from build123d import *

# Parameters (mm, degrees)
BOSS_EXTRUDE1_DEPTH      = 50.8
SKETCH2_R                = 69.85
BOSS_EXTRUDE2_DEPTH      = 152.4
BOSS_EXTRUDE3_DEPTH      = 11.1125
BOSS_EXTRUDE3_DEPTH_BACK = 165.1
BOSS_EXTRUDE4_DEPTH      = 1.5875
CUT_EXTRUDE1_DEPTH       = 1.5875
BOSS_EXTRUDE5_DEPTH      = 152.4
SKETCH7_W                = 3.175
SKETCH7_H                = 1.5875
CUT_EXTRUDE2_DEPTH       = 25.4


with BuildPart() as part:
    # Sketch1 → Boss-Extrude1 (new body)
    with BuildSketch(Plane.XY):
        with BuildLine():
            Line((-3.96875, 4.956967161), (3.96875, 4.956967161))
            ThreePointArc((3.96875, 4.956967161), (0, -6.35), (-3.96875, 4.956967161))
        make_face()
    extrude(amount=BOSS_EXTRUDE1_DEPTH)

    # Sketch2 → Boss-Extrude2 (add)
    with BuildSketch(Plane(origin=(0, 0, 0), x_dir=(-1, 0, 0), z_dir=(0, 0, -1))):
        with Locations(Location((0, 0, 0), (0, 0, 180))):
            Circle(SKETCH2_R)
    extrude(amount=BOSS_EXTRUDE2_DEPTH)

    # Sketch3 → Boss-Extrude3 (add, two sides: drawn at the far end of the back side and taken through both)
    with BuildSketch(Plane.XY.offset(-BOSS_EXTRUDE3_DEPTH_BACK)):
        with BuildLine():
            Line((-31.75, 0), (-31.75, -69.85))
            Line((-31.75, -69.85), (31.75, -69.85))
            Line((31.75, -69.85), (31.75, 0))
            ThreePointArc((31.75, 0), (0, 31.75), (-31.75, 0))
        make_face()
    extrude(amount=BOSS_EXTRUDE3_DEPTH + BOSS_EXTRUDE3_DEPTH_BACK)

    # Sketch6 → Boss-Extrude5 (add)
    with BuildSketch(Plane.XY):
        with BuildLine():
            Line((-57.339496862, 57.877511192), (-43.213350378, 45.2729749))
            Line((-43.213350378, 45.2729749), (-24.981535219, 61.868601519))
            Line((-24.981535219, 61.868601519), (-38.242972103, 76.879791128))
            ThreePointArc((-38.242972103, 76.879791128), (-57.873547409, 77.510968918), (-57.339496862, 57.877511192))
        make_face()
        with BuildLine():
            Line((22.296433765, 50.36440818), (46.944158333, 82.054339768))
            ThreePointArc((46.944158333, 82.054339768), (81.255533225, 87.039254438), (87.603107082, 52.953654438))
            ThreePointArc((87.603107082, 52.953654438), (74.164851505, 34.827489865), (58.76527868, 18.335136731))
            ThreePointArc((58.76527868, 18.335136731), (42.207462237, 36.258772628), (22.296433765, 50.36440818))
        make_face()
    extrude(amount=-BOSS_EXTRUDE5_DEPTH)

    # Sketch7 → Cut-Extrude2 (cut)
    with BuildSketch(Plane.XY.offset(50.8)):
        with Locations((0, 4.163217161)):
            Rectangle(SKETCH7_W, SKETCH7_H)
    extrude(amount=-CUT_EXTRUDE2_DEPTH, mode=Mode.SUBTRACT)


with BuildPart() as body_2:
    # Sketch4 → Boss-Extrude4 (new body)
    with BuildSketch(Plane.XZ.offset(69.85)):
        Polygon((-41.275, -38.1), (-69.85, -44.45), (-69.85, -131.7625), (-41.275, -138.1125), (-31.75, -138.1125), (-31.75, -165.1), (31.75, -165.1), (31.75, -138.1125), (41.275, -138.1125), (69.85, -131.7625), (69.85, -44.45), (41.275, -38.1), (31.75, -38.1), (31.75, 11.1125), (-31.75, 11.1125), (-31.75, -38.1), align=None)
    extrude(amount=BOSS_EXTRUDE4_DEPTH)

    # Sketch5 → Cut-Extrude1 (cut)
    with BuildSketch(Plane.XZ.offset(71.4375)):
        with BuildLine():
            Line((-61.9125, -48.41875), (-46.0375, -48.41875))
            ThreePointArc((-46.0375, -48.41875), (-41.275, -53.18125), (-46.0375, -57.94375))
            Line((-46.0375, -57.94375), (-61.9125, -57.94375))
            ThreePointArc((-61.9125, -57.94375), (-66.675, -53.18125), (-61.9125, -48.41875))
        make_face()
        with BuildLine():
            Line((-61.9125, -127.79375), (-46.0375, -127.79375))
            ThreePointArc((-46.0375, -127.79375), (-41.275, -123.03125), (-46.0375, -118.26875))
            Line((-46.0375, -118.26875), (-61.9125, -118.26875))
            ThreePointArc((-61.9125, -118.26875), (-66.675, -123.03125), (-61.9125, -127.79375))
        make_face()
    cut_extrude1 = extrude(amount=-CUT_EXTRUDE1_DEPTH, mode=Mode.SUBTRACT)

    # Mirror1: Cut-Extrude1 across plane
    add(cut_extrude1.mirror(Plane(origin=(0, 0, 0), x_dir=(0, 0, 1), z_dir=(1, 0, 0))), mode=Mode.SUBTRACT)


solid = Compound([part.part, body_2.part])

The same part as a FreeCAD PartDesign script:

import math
import FreeCAD as App
import Part
import Sketcher
from FreeCAD import Vector
Q = App.Units.Quantity


def add_polygon(sketch, points):
    """Adds a closed chain of lines whose ends are joined by coincident constraints."""
    first, n = sketch.GeometryCount, len(points)
    for a, b in zip(points, points[1:] + points[:1]):
        sketch.addGeometry(Part.LineSegment(App.Vector(*a, 0), App.Vector(*b, 0)), False)
    for i in range(n):
        sketch.addConstraint(Sketcher.Constraint("Coincident", first + i, 2, first + (i + 1) % n, 1))

doc = App.newDocument("Part")
body = doc.addObject("PartDesign::Body", "Body")

# Sketch on XY plane
sketch1 = doc.addObject("Sketcher::SketchObject", "Sketch")
body.addObject(sketch1)
sketch1.AttachmentSupport = (doc.XY_Plane, [""])
sketch1.MapMode = "FlatFace"
sketch1.addGeometry([
    Part.LineSegment(Vector(3.96875, 4.956967, 0), Vector(-3.96875, 4.956967, 0)),
    Part.ArcOfCircle(Part.Circle(Vector(0, 0, 0), Vector(0, 0, 1), 6.35), math.radians(128.682187), math.radians(411.317813)),
], False)
sketch1.addConstraint([
    Sketcher.Constraint("Coincident", 0, 1, 1, 2),
    Sketcher.Constraint("Coincident", 1, 1, 0, 2),
    Sketcher.Constraint("Horizontal", 0),
    Sketcher.Constraint("Coincident", 1, 3, -1, 1),
    Sketcher.Constraint("Radius", 1, Q("0.25 in")),
    Sketcher.Constraint("DistanceX", 0, 2, 0, 1, Q("0.3125 in")),
])
pad1 = doc.addObject("PartDesign::Pad", "Pad")
body.addObject(pad1)
pad1.Profile = sketch1
pad1.Length = Q("2 in")

# Sketch on XY plane
sketch2 = doc.addObject("Sketcher::SketchObject", "Sketch001")
body.addObject(sketch2)
sketch2.AttachmentSupport = (doc.XY_Plane, [""])
sketch2.MapMode = "FlatFace"
sketch2.addGeometry(Part.Circle(Vector(0, 0, 0), Vector(0, 0, 1), 69.85), False)
sketch2.addConstraint([
    Sketcher.Constraint("Coincident", 0, 3, -1, 1),
    Sketcher.Constraint("Diameter", 0, Q("5.5 in")),
])
pad2 = doc.addObject("PartDesign::Pad", "Pad001")
body.addObject(pad2)
pad2.Profile = sketch2
pad2.Length = Q("6 in")
pad2.Reversed = True

# Sketch on XY plane
sketch3 = doc.addObject("Sketcher::SketchObject", "Sketch002")
body.addObject(sketch3)
sketch3.AttachmentSupport = (doc.XY_Plane, [""])
sketch3.MapMode = "FlatFace"
sketch3.addGeometry([
    Part.LineSegment(Vector(-31.75, 0, 0), Vector(-31.75, -69.85, 0)),
    Part.LineSegment(Vector(-31.75, -69.85, 0), Vector(31.75, -69.85, 0)),
    Part.LineSegment(Vector(31.75, -69.85, 0), Vector(31.75, 0, 0)),
    Part.ArcOfCircle(Part.Circle(Vector(0, 0, 0), Vector(0, 0, 1), 31.75), math.radians(0), math.radians(180)),
], False)
sketch3.addConstraint([
    Sketcher.Constraint("Coincident", 0, 2, 1, 1),
    Sketcher.Constraint("Coincident", 1, 2, 2, 1),
    Sketcher.Constraint("Tangent", 2, 2, 3, 1),
    Sketcher.Constraint("Tangent", 3, 2, 0, 1),
    Sketcher.Constraint("Vertical", 0),
    Sketcher.Constraint("Horizontal", 1),
    Sketcher.Constraint("Vertical", 2),
    Sketcher.Constraint("Coincident", 3, 3, -1, 1),
    Sketcher.Constraint("Radius", 3, Q("1.25 in")),
    Sketcher.Constraint("DistanceY", 0, 2, 0, 1, Q("2.75 in")),
])
pad3 = doc.addObject("PartDesign::Pad", "Pad002")
body.addObject(pad3)
pad3.Profile = sketch3
pad3.Type = "TwoLengths"
pad3.Length = Q("0.4375 in")
pad3.Length2 = Q("6.5 in")

# Sketch on XY plane
sketch4 = doc.addObject("Sketcher::SketchObject", "Sketch003")
body.addObject(sketch4)
sketch4.AttachmentSupport = (doc.XY_Plane, [""])
sketch4.MapMode = "FlatFace"
sketch4.addGeometry([
    Part.LineSegment(Vector(-57.339497, 57.877511, 0), Vector(-43.21335, 45.272975, 0)),  # 0
    Part.LineSegment(Vector(-43.21335, 45.272975, 0), Vector(-24.981535, 61.868602, 0)),  # 1
    Part.LineSegment(Vector(-24.981535, 61.868602, 0), Vector(-38.242972, 76.879791, 0)),  # 2
    Part.ArcOfCircle(Part.Circle(Vector(-48.355657, 67.945873, 0), Vector(0, 0, 1), 13.49375), math.radians(41.458562), math.radians(228.257974)),  # 3
    Part.LineSegment(Vector(46.944158, 82.05434, 0), Vector(22.296434, 50.364408, 0)),  # 4
    Part.ArcOfCircle(Part.Circle(Vector(-35.115285, -51.781671, 0), Vector(0, 0, 1), 117.174771), math.radians(36.755041), math.radians(60.661617)),  # 5
    Part.ArcOfCircle(Part.Circle(Vector(-79.085284, 162.487523, 0), Vector(0, 0, 1), 199.45598), math.radians(-46.280156), math.radians(-33.309618)),  # 6
    Part.ArcOfCircle(Part.Circle(Vector(66.693635, 66.693635, 0), Vector(0, 0, 1), 25.019854), math.radians(-33.309618), math.radians(142.125016)),  # 7
], False)
sketch4.addConstraint([
    Sketcher.Constraint("Coincident", 0, 2, 1, 1),
    Sketcher.Constraint("Coincident", 1, 2, 2, 1),
    Sketcher.Constraint("Tangent", 2, 2, 3, 1),
    Sketcher.Constraint("Tangent", 3, 2, 0, 1),
    Sketcher.Constraint("Coincident", 4, 2, 5, 2),
    Sketcher.Constraint("Coincident", 5, 1, 6, 1),
    Sketcher.Constraint("Tangent", 6, 2, 7, 1),
    Sketcher.Constraint("Tangent", 7, 2, 4, 1),
    Sketcher.Constraint("Radius", 3, Q("0.53125 in")),
    Sketcher.Constraint("Radius", 5, 117.174771),
    Sketcher.Constraint("Radius", 6, 199.45598),
    Sketcher.Constraint("Radius", 7, 25.019854),
    Sketcher.Constraint("DistanceY", -1, 1, 1, 2, 61.868602),
    Sketcher.Constraint("DistanceX", 6, 3, 5, 3, 43.969999),
    Sketcher.Constraint("DistanceY", 0, 2, 3, 3, 22.672898),
    Sketcher.Constraint("DistanceX", 4, 2, 7, 3, 44.397202),
    Sketcher.Constraint("DistanceY", 5, 1, 7, 3, 48.358499),
    Sketcher.Constraint("DistanceY", 5, 3, -1, 1, 51.781671),
    Sketcher.Constraint("DistanceX", 0, 2, -1, 1, 43.21335),
    Sketcher.Constraint("DistanceY", -1, 1, 2, 2, 76.879791),
    Sketcher.Constraint("DistanceY", -1, 1, 3, 2, 57.877511),
    Sketcher.Constraint("DistanceY", -1, 1, 4, 2, 50.364408),
    Sketcher.Constraint("DistanceX", -1, 1, 5, 1, 58.765279),
    Sketcher.Constraint("DistanceY", 3, 3, 6, 3, 94.541649),
])
pad4 = doc.addObject("PartDesign::Pad", "Pad003")
body.addObject(pad4)
pad4.Profile = sketch4
pad4.Length = Q("6 in")
pad4.Reversed = True

# Sketch on XY plane
sketch5 = doc.addObject("Sketcher::SketchObject", "Sketch004")
body.addObject(sketch5)
sketch5.AttachmentSupport = (doc.XY_Plane, [""])
sketch5.MapMode = "FlatFace"
sketch5.AttachmentOffset = App.Placement(Vector(0, 0, 2 * 25.4), App.Rotation())
add_polygon(sketch5, [(-1.5875, 4.956967), (-1.5875, 3.369467), (1.5875, 3.369467), (1.5875, 4.956967)])  # lines 0-3
sketch5.addConstraint([
    Sketcher.Constraint("Vertical", 0),
    Sketcher.Constraint("Horizontal", 1),
    Sketcher.Constraint("Vertical", 2),
    Sketcher.Constraint("Horizontal", 3),
    Sketcher.Constraint("DistanceX", 1, 1, 1, 2, Q("0.125 in")),
    Sketcher.Constraint("DistanceY", 0, 2, 0, 1, Q("0.0625 in")),
    Sketcher.Constraint("DistanceX", 0, 2, -1, 1, Q("0.0625 in")),
    Sketcher.Constraint("DistanceY", -1, 1, 0, 2, 3.369467),
])
pocket1 = doc.addObject("PartDesign::Pocket", "Pocket")
body.addObject(pocket1)
pocket1.Profile = sketch5
pocket1.Length = Q("1 in")
body2 = doc.addObject("PartDesign::Body", "Body001")

# Sketch on XZ plane
sketch6 = doc.addObject("Sketcher::SketchObject", "Sketch005")
body2.addObject(sketch6)
sketch6.AttachmentSupport = (doc.getObject("XZ_Plane001"), [""])
sketch6.MapMode = "FlatFace"
sketch6.AttachmentOffset = App.Placement(Vector(0, 0, 2.75 * 25.4), App.Rotation())
add_polygon(sketch6, [(-41.275, -38.1), (-69.85, -44.45), (-69.85, -131.7625), (-41.275, -138.1125), (-31.75, -138.1125), (-31.75, -165.1), (31.75, -165.1), (31.75, -138.1125), (41.275, -138.1125), (69.85, -131.7625), (69.85, -44.45), (41.275, -38.1), (31.75, -38.1), (31.75, 11.1125), (-31.75, 11.1125), (-31.75, -38.1)])  # lines 0-15
sketch6.addConstraint([
    Sketcher.Constraint("Vertical", 1),
    Sketcher.Constraint("Horizontal", 3),
    Sketcher.Constraint("Vertical", 4),
    Sketcher.Constraint("Horizontal", 5),
    Sketcher.Constraint("Vertical", 6),
    Sketcher.Constraint("Horizontal", 7),
    Sketcher.Constraint("Vertical", 9),
    Sketcher.Constraint("Horizontal", 11),
    Sketcher.Constraint("Vertical", 12),
    Sketcher.Constraint("Horizontal", 13),
    Sketcher.Constraint("Vertical", 14),
    Sketcher.Constraint("Horizontal", 15),
    Sketcher.Constraint("Symmetric", 3, 2, 6, 2, -2),
    Sketcher.Constraint("Symmetric", 1, 2, 8, 2, -2),
    Sketcher.Constraint("Symmetric", 11, 2, 14, 2, -2),
    Sketcher.Constraint("Parallel", 0, 8),
    Sketcher.Constraint("Parallel", 2, 10),
    Sketcher.Constraint("Horizontal", 0, 2, 9, 2),
    Sketcher.Constraint("Vertical", 7, 2, 10, 2),
    Sketcher.Constraint("Vertical", 6, 2, 11, 2),
    Sketcher.Constraint("Vertical", 2, 2, 15, 2),
    Sketcher.Constraint("DistanceX", 5, 1, 5, 2, Q("2.5 in")),
    Sketcher.Constraint("DistanceX", 1, 2, 5, 2, Q("4 in")),
    Sketcher.Constraint("DistanceY", 4, 2, -1, 1, Q("6.5 in")),
    Sketcher.Constraint("DistanceY", 10, 2, -1, 1, Q("1.5 in")),
    Sketcher.Constraint("DistanceX", 3, 1, 3, 2, Q("0.375 in")),
    Sketcher.Constraint("DistanceY", 1, 2, 1, 1, Q("3.4375 in")),
    Sketcher.Constraint("DistanceY", 4, 2, 4, 1, Q("1.0625 in")),
    Sketcher.Constraint("DistanceY", 12, 1, 12, 2, Q("1.9375 in")),
])
pad5 = doc.addObject("PartDesign::Pad", "Pad004")
body2.addObject(pad5)
pad5.Profile = sketch6
pad5.Length = Q("0.0625 in")

# Sketch on XZ plane
sketch7 = doc.addObject("Sketcher::SketchObject", "Sketch006")
body2.addObject(sketch7)
sketch7.AttachmentSupport = (doc.getObject("XZ_Plane001"), [""])
sketch7.MapMode = "FlatFace"
sketch7.AttachmentOffset = App.Placement(Vector(0, 0, 2.8125 * 25.4), App.Rotation())
sketch7.addGeometry([
    Part.LineSegment(Vector(-46.0375, -48.41875, 0), Vector(-61.9125, -48.41875, 0)),  # 0
    Part.ArcOfCircle(Part.Circle(Vector(-61.9125, -53.18125, 0), Vector(0, 0, 1), 4.7625), math.radians(90), math.radians(270)),  # 1
    Part.LineSegment(Vector(-61.9125, -57.94375, 0), Vector(-46.0375, -57.94375, 0)),  # 2
    Part.ArcOfCircle(Part.Circle(Vector(-46.0375, -53.18125, 0), Vector(0, 0, 1), 4.7625), math.radians(-90), math.radians(90)),  # 3
    Part.LineSegment(Vector(-61.9125, -127.79375, 0), Vector(-46.0375, -127.79375, 0)),  # 4
    Part.ArcOfCircle(Part.Circle(Vector(-46.0375, -123.03125, 0), Vector(0, 0, 1), 4.7625), math.radians(-90), math.radians(90)),  # 5
    Part.LineSegment(Vector(-46.0375, -118.26875, 0), Vector(-61.9125, -118.26875, 0)),  # 6
    Part.ArcOfCircle(Part.Circle(Vector(-61.9125, -123.03125, 0), Vector(0, 0, 1), 4.7625), math.radians(90), math.radians(270)),  # 7
], False)
sketch7.addConstraint([
    Sketcher.Constraint("Tangent", 0, 2, 1, 1),
    Sketcher.Constraint("Tangent", 1, 2, 2, 1),
    Sketcher.Constraint("Tangent", 2, 2, 3, 1),
    Sketcher.Constraint("Tangent", 3, 2, 0, 1),
    Sketcher.Constraint("Tangent", 4, 2, 5, 1),
    Sketcher.Constraint("Tangent", 5, 2, 6, 1),
    Sketcher.Constraint("Tangent", 6, 2, 7, 1),
    Sketcher.Constraint("Tangent", 7, 2, 4, 1),
    Sketcher.Constraint("Horizontal", 0),
    Sketcher.Constraint("Horizontal", 2),
    Sketcher.Constraint("Horizontal", 4),
    Sketcher.Constraint("Horizontal", 6),
    Sketcher.Constraint("Equal", 3, 5),
    Sketcher.Constraint("Vertical", 3, 3, 5, 3),
    Sketcher.Constraint("Vertical", 1, 3, 7, 3),
    Sketcher.Constraint("Radius", 1, Q("0.1875 in")),
    Sketcher.Constraint("DistanceX", 0, 2, 0, 1, Q("0.625 in")),
    Sketcher.Constraint("DistanceY", 5, 3, 3, 3, Q("2.75 in")),
    Sketcher.Constraint("DistanceX", 1, 3, -1, 1, Q("2.4375 in")),
    Sketcher.Constraint("DistanceY", 1, 3, -1, 1, Q("2.09375 in")),
])
pocket2 = doc.addObject("PartDesign::Pocket", "Pocket001")
body2.addObject(pocket2)
pocket2.Profile = sketch7
pocket2.Length = Q("0.0625 in")
doc.recompute()

mirrored = doc.addObject("PartDesign::Mirrored", "Mirrored")
body2.addObject(mirrored)
mirrored.Originals = [pocket2]
mirrored.MirrorPlane = (doc.getObject("YZ_Plane001"), [""])
body2.Tip = mirrored

doc.recompute()
